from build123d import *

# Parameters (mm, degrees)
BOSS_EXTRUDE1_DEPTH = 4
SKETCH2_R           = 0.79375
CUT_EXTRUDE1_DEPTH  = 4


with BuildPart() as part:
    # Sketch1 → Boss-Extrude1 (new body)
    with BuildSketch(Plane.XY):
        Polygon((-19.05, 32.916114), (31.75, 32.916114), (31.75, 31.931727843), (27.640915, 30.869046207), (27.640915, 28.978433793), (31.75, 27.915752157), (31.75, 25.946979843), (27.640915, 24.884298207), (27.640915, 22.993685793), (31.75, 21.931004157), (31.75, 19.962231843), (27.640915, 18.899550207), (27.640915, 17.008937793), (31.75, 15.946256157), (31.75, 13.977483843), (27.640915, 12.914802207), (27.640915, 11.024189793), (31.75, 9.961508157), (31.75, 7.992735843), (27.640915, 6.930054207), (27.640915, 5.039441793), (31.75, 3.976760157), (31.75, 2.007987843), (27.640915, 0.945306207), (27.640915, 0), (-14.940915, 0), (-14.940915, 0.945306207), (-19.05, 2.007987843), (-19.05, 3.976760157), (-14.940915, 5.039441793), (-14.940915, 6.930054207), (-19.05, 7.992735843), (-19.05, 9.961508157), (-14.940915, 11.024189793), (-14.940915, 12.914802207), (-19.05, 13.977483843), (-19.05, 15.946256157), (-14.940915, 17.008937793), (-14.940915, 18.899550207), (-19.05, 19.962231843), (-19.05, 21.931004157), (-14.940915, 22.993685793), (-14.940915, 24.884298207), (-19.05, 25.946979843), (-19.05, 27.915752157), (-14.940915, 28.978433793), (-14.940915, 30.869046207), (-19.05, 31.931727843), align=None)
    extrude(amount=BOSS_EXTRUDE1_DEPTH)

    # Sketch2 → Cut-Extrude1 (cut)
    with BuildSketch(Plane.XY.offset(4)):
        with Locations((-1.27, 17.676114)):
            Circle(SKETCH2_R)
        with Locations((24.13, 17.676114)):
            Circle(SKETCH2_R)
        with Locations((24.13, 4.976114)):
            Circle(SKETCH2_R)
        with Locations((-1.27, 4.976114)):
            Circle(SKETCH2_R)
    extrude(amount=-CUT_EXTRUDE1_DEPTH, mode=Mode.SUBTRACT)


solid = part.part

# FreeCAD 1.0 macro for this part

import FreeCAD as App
import Part
import Sketcher
Q = App.Units.Quantity


def add_polygon(sketch, points):
    """Adds a closed chain of lines whose ends are joined by coincident constraints."""
    first, n = sketch.GeometryCount, len(points)
    for a, b in zip(points, points[1:] + points[:1]):
        sketch.addGeometry(Part.LineSegment(App.Vector(*a, 0), App.Vector(*b, 0)), False)
    for i in range(n):
        sketch.addConstraint(Sketcher.Constraint("Coincident", first + i, 2, first + (i + 1) % n, 1))

doc = App.newDocument("Part")
body = doc.addObject("PartDesign::Body", "Body")

# Sketch on XY plane
sketch1 = doc.addObject("Sketcher::SketchObject", "Sketch")
body.addObject(sketch1)
sketch1.AttachmentSupport = (doc.XY_Plane, [""])
sketch1.MapMode = "FlatFace"
add_polygon(sketch1, [(31.75, 32.916114), (-19.05, 32.916114), (-19.05, 31.931728), (-14.940915, 30.869046), (-14.940915, 28.978434), (-19.05, 27.915752), (-19.05, 25.94698), (-14.940915, 24.884298), (-14.940915, 22.993686), (-19.05, 21.931004), (-19.05, 19.962232), (-14.940915, 18.89955), (-14.940915, 17.008938), (-19.05, 15.946256), (-19.05, 13.977484), (-14.940915, 12.914802), (-14.940915, 11.02419), (-19.05, 9.961508), (-19.05, 7.992736), (-14.940915, 6.930054), (-14.940915, 5.039442), (-19.05, 3.97676), (-19.05, 2.007988), (-14.940915, 0.945306), (-14.940915, 0), (27.640915, 0), (27.640915, 0.945306), (31.75, 2.007988), (31.75, 3.97676), (27.640915, 5.039442), (27.640915, 6.930054), (31.75, 7.992736), (31.75, 9.961508), (27.640915, 11.02419), (27.640915, 12.914802), (31.75, 13.977484), (31.75, 15.946256), (27.640915, 17.008938), (27.640915, 18.89955), (31.75, 19.962232), (31.75, 21.931004), (27.640915, 22.993686), (27.640915, 24.884298), (31.75, 25.94698), (31.75, 27.915752), (27.640915, 28.978434), (27.640915, 30.869046), (31.75, 31.931728)])  # lines 0-47
sketch1.addConstraint([
    Sketcher.Constraint("Horizontal", 0),
    Sketcher.Constraint("Vertical", 1),
    Sketcher.Constraint("Vertical", 3),
    Sketcher.Constraint("Vertical", 5),
    Sketcher.Constraint("Vertical", 7),
    Sketcher.Constraint("Vertical", 9),
    Sketcher.Constraint("Vertical", 11),
    Sketcher.Constraint("Vertical", 13),
    Sketcher.Constraint("Vertical", 15),
    Sketcher.Constraint("Vertical", 17),
    Sketcher.Constraint("Vertical", 19),
    Sketcher.Constraint("Vertical", 21),
    Sketcher.Constraint("Vertical", 23),
    Sketcher.Constraint("Horizontal", 24),
    Sketcher.Constraint("Vertical", 25),
    Sketcher.Constraint("Vertical", 27),
    Sketcher.Constraint("Vertical", 29),
    Sketcher.Constraint("Vertical", 31),
    Sketcher.Constraint("Vertical", 33),
    Sketcher.Constraint("Vertical", 35),
    Sketcher.Constraint("Vertical", 37),
    Sketcher.Constraint("Vertical", 39),
    Sketcher.Constraint("Vertical", 41),
    Sketcher.Constraint("Vertical", 43),
    Sketcher.Constraint("Vertical", 45),
    Sketcher.Constraint("Vertical", 47),
    Sketcher.Constraint("PointOnObject", 23, 2, -1),
    Sketcher.Constraint("Parallel", 2, 6),
    Sketcher.Constraint("Parallel", 4, 8),
    Sketcher.Constraint("Parallel", 6, 10),
    Sketcher.Constraint("Parallel", 8, 12),
    Sketcher.Constraint("Parallel", 10, 14),
    Sketcher.Constraint("Parallel", 12, 16),
    Sketcher.Constraint("Parallel", 14, 18),
    Sketcher.Constraint("Parallel", 16, 20),
    Sketcher.Constraint("Parallel", 18, 22),
    Sketcher.Constraint("Parallel", 20, 26),
    Sketcher.Constraint("Parallel", 22, 28),
    Sketcher.Constraint("Parallel", 26, 30),
    Sketcher.Constraint("Parallel", 28, 32),
    Sketcher.Constraint("Parallel", 30, 34),
    Sketcher.Constraint("Parallel", 32, 36),
    Sketcher.Constraint("Parallel", 34, 38),
    Sketcher.Constraint("Parallel", 36, 40),
    Sketcher.Constraint("Parallel", 38, 42),
    Sketcher.Constraint("Parallel", 40, 44),
    Sketcher.Constraint("Parallel", 42, 46),
    Sketcher.Constraint("Horizontal", 22, 2, 25, 2),
    Sketcher.Constraint("Horizontal", 21, 2, 26, 2),
    Sketcher.Constraint("Horizontal", 20, 2, 27, 2),
    Sketcher.Constraint("Horizontal", 19, 2, 28, 2),
    Sketcher.Constraint("Horizontal", 18, 2, 29, 2),
    Sketcher.Constraint("Horizontal", 17, 2, 30, 2),
    Sketcher.Constraint("Horizontal", 16, 2, 31, 2),
    Sketcher.Constraint("Horizontal", 15, 2, 32, 2),
    Sketcher.Constraint("Horizontal", 14, 2, 33, 2),
    Sketcher.Constraint("Horizontal", 13, 2, 34, 2),
    Sketcher.Constraint("Horizontal", 12, 2, 35, 2),
    Sketcher.Constraint("Horizontal", 11, 2, 36, 2),
    Sketcher.Constraint("Horizontal", 10, 2, 37, 2),
    Sketcher.Constraint("Horizontal", 9, 2, 38, 2),
    Sketcher.Constraint("Horizontal", 8, 2, 39, 2),
    Sketcher.Constraint("Horizontal", 7, 2, 40, 2),
    Sketcher.Constraint("Horizontal", 6, 2, 41, 2),
    Sketcher.Constraint("Horizontal", 5, 2, 42, 2),
    Sketcher.Constraint("Horizontal", 4, 2, 43, 2),
    Sketcher.Constraint("Horizontal", 3, 2, 44, 2),
    Sketcher.Constraint("Horizontal", 2, 2, 45, 2),
    Sketcher.Constraint("Horizontal", 1, 2, 46, 2),
    Sketcher.Constraint("Vertical", 1, 2, 4, 2),
    Sketcher.Constraint("Vertical", 3, 2, 6, 2),
    Sketcher.Constraint("Vertical", 5, 2, 8, 2),
    Sketcher.Constraint("Vertical", 7, 2, 10, 2),
    Sketcher.Constraint("Vertical", 9, 2, 12, 2),
    Sketcher.Constraint("Vertical", 11, 2, 14, 2),
    Sketcher.Constraint("Vertical", 13, 2, 16, 2),
    Sketcher.Constraint("Vertical", 15, 2, 18, 2),
    Sketcher.Constraint("Vertical", 17, 2, 20, 2),
    Sketcher.Constraint("Vertical", 19, 2, 22, 2),
    Sketcher.Constraint("Vertical", 25, 2, 28, 2),
    Sketcher.Constraint("Equal", 3, 7),
    Sketcher.Constraint("Equal", 5, 9),
    Sketcher.Constraint("Equal", 7, 11),
    Sketcher.Constraint("Equal", 9, 13),
    Sketcher.Constraint("Equal", 11, 15),
    Sketcher.Constraint("Equal", 13, 17),
    Sketcher.Constraint("Equal", 15, 19),
    Sketcher.Constraint("Equal", 17, 21),
    Sketcher.Constraint("DistanceX", 0, 2, 0, 1, Q("2 in")),
    Sketcher.Constraint("Angle", 2, Q("-14.5 deg")),
    Sketcher.Constraint("DistanceX", 0, 2, -1, 1, Q("0.75 in")),
    Sketcher.Constraint("DistanceX", 24, 1, 24, 2, 42.58183),
    Sketcher.Constraint("DistanceY", -1, 1, 6, 2, 24.884298),
    Sketcher.Constraint("DistanceY", 1, 2, 1, 1, 0.984386),
    Sketcher.Constraint("DistanceY", 3, 2, 3, 1, 1.890612),
    Sketcher.Constraint("DistanceY", 5, 2, 5, 1, 1.968772),
])
pad1 = doc.addObject("PartDesign::Pad", "Pad")
body.addObject(pad1)
pad1.Profile = sketch1
pad1.Length = 4

# Sketch on XY plane
sketch2 = doc.addObject("Sketcher::SketchObject", "Sketch001")
body.addObject(sketch2)
sketch2.AttachmentSupport = (doc.XY_Plane, [""])
sketch2.MapMode = "FlatFace"
sketch2.AttachmentOffset = App.Placement(App.Vector(0, 0, 4), App.Rotation())
sketch2.addGeometry([
    Part.Circle(App.Vector(-1.27, 17.676114, 0), App.Vector(0, 0, 1), 0.79375),
    Part.Circle(App.Vector(24.13, 17.676114, 0), App.Vector(0, 0, 1), 0.79375),
    Part.Circle(App.Vector(24.13, 4.976114, 0), App.Vector(0, 0, 1), 0.79375),
    Part.Circle(App.Vector(-1.27, 4.976114, 0), App.Vector(0, 0, 1), 0.79375),
], False)
sketch2.addConstraint([
    Sketcher.Constraint("Equal", 0, 1),
    Sketcher.Constraint("Equal", 1, 2),
    Sketcher.Constraint("Equal", 2, 3),
    Sketcher.Constraint("Horizontal", 0, 3, 1, 3),
    Sketcher.Constraint("Horizontal", 2, 3, 3, 3),
    Sketcher.Constraint("Vertical", 1, 3, 2, 3),
    Sketcher.Constraint("Vertical", 0, 3, 3, 3),
    Sketcher.Constraint("Diameter", 0, Q("0.0625 in")),
    Sketcher.Constraint("DistanceX", 0, 3, 1, 3, Q("1 in")),
    Sketcher.Constraint("DistanceY", 2, 3, 1, 3, Q("0.5 in")),
    Sketcher.Constraint("DistanceX", 0, 3, -1, 1, Q("0.05 in")),
    Sketcher.Constraint("DistanceY", -1, 1, 0, 3, 17.676114),
])
pocket1 = doc.addObject("PartDesign::Pocket", "Pocket")
body.addObject(pocket1)
pocket1.Profile = sketch2
pocket1.Length = 4

doc.recompute()
